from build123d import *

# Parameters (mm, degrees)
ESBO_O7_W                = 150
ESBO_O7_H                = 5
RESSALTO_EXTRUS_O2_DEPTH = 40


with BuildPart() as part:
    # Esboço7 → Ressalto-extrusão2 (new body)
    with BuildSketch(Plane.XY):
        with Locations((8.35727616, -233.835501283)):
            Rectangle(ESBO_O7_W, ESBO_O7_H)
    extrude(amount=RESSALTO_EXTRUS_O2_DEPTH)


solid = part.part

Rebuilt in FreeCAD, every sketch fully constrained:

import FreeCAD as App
import Part
import Sketcher
Q = App.Units.Quantity


def add_polygon(sketch, points):
    """Adds a closed chain of lines whose ends are joined by coincident constraints."""
    first, n = sketch.GeometryCount, len(points)
    for a, b in zip(points, points[1:] + points[:1]):
        sketch.addGeometry(Part.LineSegment(App.Vector(*a, 0), App.Vector(*b, 0)), False)
    for i in range(n):
        sketch.addConstraint(Sketcher.Constraint("Coincident", first + i, 2, first + (i + 1) % n, 1))

doc = App.newDocument("Part")
body = doc.addObject("PartDesign::Body", "Body")

# Sketch on XY plane
sketch1 = doc.addObject("Sketcher::SketchObject", "Sketch")
body.addObject(sketch1)
sketch1.AttachmentSupport = (doc.XY_Plane, [""])
sketch1.MapMode = "FlatFace"
add_polygon(sketch1, [(-66.642724, -231.335501), (-66.642724, -236.335501), (83.357276, -236.335501), (83.357276, -231.335501)])  # lines 0-3
sketch1.addConstraint(Sketcher.Constraint("Vertical", 0))
sketch1.addConstraint(Sketcher.Constraint("Horizontal", 1))
sketch1.addConstraint(Sketcher.Constraint("Vertical", 2))
sketch1.addConstraint(Sketcher.Constraint("Horizontal", 3))
sketch1.addConstraint(Sketcher.Constraint("DistanceX", 1, 1, 1, 2, Q("150 mm")))
sketch1.addConstraint(Sketcher.Constraint("DistanceY", 0, 2, 0, 1, Q("5 mm")))
sketch1.addConstraint(Sketcher.Constraint("DistanceY", 0, 2, -1, 1, Q("236.335501 mm")))
sketch1.addConstraint(Sketcher.Constraint("DistanceX", 0, 2, -1, 1, Q("66.642724 mm")))
pad1 = doc.addObject("PartDesign::Pad", "Pad")
body.addObject(pad1)
pad1.Profile = sketch1
pad1.Length = 40

doc.recompute()
